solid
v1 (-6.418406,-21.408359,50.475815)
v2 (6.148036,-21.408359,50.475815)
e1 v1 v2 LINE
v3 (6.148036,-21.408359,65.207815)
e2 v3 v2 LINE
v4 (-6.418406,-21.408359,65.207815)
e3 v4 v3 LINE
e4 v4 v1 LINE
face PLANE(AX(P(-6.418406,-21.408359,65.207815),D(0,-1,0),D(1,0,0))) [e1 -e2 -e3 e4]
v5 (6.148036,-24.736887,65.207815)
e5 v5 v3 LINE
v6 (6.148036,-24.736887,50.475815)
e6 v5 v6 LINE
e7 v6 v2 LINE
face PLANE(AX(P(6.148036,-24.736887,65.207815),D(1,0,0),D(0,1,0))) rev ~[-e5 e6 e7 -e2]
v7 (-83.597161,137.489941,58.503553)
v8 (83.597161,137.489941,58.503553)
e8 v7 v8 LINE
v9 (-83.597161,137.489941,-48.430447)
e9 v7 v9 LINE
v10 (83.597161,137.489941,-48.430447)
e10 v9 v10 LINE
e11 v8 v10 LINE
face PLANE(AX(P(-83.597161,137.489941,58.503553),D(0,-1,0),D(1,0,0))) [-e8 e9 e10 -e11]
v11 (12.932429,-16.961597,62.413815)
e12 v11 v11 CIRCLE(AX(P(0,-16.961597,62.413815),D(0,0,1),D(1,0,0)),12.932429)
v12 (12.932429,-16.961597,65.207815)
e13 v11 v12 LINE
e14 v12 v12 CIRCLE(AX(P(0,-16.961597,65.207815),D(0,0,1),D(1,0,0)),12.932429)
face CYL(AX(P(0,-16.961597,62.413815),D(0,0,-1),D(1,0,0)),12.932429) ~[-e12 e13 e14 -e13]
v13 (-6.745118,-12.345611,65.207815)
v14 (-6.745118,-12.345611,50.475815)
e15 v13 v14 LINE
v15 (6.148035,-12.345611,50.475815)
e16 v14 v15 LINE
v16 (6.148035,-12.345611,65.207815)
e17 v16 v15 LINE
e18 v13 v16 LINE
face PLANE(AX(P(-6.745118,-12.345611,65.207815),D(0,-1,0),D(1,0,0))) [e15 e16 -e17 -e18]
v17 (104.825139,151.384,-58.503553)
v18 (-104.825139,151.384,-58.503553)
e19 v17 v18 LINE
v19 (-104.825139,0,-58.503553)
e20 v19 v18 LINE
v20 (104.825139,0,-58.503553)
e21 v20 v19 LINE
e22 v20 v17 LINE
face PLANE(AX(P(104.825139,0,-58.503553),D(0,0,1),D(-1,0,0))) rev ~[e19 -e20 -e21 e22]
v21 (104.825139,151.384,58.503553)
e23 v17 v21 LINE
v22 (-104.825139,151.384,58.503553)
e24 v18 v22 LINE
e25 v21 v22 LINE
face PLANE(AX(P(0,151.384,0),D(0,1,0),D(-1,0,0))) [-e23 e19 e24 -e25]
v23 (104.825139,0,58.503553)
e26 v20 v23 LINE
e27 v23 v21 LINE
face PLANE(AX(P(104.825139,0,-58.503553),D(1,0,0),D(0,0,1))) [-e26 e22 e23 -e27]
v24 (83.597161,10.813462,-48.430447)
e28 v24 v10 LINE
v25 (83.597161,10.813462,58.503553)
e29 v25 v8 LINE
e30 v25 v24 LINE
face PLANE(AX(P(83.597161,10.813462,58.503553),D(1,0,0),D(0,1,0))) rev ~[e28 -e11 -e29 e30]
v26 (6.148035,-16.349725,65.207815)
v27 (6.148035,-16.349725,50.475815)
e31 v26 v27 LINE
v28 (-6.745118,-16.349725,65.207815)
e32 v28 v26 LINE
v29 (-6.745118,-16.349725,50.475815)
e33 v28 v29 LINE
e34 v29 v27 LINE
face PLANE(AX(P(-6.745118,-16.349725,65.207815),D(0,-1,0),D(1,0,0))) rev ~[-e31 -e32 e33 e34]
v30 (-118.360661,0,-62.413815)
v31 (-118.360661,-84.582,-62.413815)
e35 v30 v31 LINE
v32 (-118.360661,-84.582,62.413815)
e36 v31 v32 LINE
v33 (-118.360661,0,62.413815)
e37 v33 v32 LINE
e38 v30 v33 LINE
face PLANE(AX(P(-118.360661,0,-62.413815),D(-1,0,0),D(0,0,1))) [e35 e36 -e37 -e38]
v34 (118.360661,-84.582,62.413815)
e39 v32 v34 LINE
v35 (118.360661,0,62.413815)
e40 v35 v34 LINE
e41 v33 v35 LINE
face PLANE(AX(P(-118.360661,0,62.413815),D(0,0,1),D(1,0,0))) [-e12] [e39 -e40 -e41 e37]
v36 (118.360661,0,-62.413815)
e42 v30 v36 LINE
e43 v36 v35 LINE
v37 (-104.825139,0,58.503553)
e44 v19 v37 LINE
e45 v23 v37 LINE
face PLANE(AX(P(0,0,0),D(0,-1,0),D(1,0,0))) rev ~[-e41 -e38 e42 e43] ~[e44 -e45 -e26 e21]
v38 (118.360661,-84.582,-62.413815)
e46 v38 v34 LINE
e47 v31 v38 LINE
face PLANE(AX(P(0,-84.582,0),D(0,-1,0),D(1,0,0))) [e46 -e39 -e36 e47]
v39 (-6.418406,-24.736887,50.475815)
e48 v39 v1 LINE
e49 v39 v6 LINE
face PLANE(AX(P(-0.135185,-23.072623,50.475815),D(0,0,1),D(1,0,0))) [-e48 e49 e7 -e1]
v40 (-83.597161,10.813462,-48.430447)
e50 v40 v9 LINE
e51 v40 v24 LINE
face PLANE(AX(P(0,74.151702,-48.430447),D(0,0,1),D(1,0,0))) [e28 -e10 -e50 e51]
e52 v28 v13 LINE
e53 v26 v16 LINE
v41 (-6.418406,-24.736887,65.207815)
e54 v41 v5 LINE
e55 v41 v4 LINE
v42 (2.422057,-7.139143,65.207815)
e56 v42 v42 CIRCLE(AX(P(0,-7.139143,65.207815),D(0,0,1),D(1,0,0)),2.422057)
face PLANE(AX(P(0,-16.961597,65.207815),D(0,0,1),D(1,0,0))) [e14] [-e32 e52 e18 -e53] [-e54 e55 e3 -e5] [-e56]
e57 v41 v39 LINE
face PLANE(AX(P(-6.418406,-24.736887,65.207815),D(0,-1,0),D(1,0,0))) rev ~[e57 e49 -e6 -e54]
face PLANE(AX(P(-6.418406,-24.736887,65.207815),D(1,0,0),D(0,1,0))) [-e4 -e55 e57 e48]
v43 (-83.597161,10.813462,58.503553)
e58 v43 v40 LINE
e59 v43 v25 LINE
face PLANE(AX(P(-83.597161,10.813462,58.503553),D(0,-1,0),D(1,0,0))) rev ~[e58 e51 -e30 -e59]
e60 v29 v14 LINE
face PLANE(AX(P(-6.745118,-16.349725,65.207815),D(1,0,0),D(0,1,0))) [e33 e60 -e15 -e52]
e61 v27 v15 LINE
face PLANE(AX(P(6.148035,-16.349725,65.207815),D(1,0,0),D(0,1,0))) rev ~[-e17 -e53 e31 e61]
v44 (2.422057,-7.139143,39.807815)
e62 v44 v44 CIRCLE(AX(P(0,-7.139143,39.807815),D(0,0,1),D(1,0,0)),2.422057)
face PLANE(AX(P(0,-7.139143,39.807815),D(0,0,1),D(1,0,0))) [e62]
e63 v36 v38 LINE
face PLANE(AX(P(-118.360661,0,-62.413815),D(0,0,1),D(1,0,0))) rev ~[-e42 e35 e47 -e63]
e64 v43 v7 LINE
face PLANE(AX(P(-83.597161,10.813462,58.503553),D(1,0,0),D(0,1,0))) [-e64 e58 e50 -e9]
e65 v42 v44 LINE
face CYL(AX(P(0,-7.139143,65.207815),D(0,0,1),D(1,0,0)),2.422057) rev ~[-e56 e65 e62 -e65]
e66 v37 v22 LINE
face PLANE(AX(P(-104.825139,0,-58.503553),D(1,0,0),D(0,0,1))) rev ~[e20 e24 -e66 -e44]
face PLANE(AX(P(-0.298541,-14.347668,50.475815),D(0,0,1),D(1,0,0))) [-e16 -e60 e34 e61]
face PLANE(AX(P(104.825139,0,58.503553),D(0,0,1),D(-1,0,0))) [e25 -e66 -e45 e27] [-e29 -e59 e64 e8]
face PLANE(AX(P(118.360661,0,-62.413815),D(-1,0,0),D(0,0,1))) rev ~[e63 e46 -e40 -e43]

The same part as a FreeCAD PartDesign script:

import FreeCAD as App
import Part
import Sketcher
from FreeCAD import Vector
Q = App.Units.Quantity

doc = App.newDocument("Part")
body = doc.addObject("PartDesign::Body", "Body")

sketch1 = body.newObject("Sketcher::SketchObject", "Sketch")
sketch1.AttachmentSupport = (doc.getObject("XZ_Plane"), [""])
sketch1.MapMode = "FlatFace"
sketch1.addGeometry([
    Part.LineSegment(Vector(-118, 62, 0), Vector(-118, -62, 0)),
    Part.LineSegment(Vector(-118, -62, 0), Vector(118, -62, 0)),
    Part.LineSegment(Vector(118, -62, 0), Vector(118, 62, 0)),
    Part.LineSegment(Vector(118, 62, 0), Vector(-118, 62, 0)),
], False)
sketch1.addConstraint([
    Sketcher.Constraint("Coincident", 0, 2, 1, 1),
    Sketcher.Constraint("Coincident", 1, 2, 2, 1),
    Sketcher.Constraint("Coincident", 2, 2, 3, 1),
    Sketcher.Constraint("Coincident", 3, 2, 0, 1),
    Sketcher.Constraint("Vertical", 0),
    Sketcher.Constraint("Horizontal", 1),
    Sketcher.Constraint("Vertical", 2),
    Sketcher.Constraint("Horizontal", 3),
    Sketcher.Constraint("Symmetric", 0, 2, 2, 2, -1, 1),
    Sketcher.Constraint("DistanceX", 1, 1, 1, 2, 236.721322),
    Sketcher.Constraint("DistanceY", 0, 2, 0, 1, 124.82763),
])
pad1 = body.newObject("PartDesign::Pad", "Pad")
pad1.Profile = sketch1
pad1.Length = Q("3.33 in")

sketch2 = body.newObject("Sketcher::SketchObject", "Sketch001")
sketch2.AttachmentSupport = (doc.getObject("XZ_Plane"), [""])
sketch2.MapMode = "FlatFace"
sketch2.addGeometry([
    Part.LineSegment(Vector(105, 59, 0), Vector(105, -59, 0)),
    Part.LineSegment(Vector(105, -59, 0), Vector(-105, -59, 0)),
    Part.LineSegment(Vector(-105, -59, 0), Vector(-105, 59, 0)),
    Part.LineSegment(Vector(-105, 59, 0), Vector(105, 59, 0)),
], False)
sketch2.addConstraint([
    Sketcher.Constraint("Coincident", 0, 2, 1, 1),
    Sketcher.Constraint("Coincident", 1, 2, 2, 1),
    Sketcher.Constraint("Coincident", 2, 2, 3, 1),
    Sketcher.Constraint("Coincident", 3, 2, 0, 1),
    Sketcher.Constraint("Vertical", 0),
    Sketcher.Constraint("Horizontal", 1),
    Sketcher.Constraint("Vertical", 2),
    Sketcher.Constraint("Horizontal", 3),
    Sketcher.Constraint("Symmetric", 0, 2, 2, 2, -1, 1),
    Sketcher.Constraint("DistanceX", 1, 2, 1, 1, 209.650278),
    Sketcher.Constraint("DistanceY", 0, 2, 0, 1, 117.007106),
])
pad2 = body.newObject("PartDesign::Pad", "Pad001")
pad2.Profile = sketch2
pad2.Length = Q("5.96 in")
pad2.Reversed = True

sketch3 = body.newObject("Sketcher::SketchObject", "Sketch002")
sketch3.AttachmentSupport = (doc.getObject("XY_Plane"), [""])
sketch3.MapMode = "FlatFace"
sketch3.AttachmentOffset = App.Placement(Vector(0, 0, 58.503553), App.Rotation())
sketch3.addGeometry([
    Part.LineSegment(Vector(-84, 137, 0), Vector(-84, 11, 0)),
    Part.LineSegment(Vector(-84, 11, 0), Vector(84, 11, 0)),
    Part.LineSegment(Vector(84, 11, 0), Vector(84, 137, 0)),
    Part.LineSegment(Vector(84, 137, 0), Vector(-84, 137, 0)),
], False)
sketch3.addConstraint([
    Sketcher.Constraint("Coincident", 0, 2, 1, 1),
    Sketcher.Constraint("Coincident", 1, 2, 2, 1),
    Sketcher.Constraint("Coincident", 2, 2, 3, 1),
    Sketcher.Constraint("Coincident", 3, 2, 0, 1),
    Sketcher.Constraint("Vertical", 0),
    Sketcher.Constraint("Horizontal", 1),
    Sketcher.Constraint("Vertical", 2),
    Sketcher.Constraint("Horizontal", 3),
    Sketcher.Constraint("DistanceX", 1, 1, 1, 2, 167.194322),
    Sketcher.Constraint("DistanceY", 0, 2, 0, 1, 126.676479),
    Sketcher.Constraint("DistanceX", 0, 2, -1, 1, 83.597161),
    Sketcher.Constraint("DistanceY", -1, 1, 2, 2, 137.489941),
])
pocket1 = body.newObject("PartDesign::Pocket", "Pocket")
pocket1.Profile = sketch3
pocket1.Length = Q("4.21 in")

sketch4 = body.newObject("Sketcher::SketchObject", "Sketch003")
sketch4.AttachmentSupport = (doc.getObject("XY_Plane"), [""])
sketch4.MapMode = "FlatFace"
sketch4.AttachmentOffset = App.Placement(Vector(0, 0, 62.413815), App.Rotation())
sketch4.addGeometry(Part.Circle(Vector(0, -17, 0), Vector(0, 0, 1), 13), False)
sketch4.addConstraint([
    Sketcher.Constraint("PointOnObject", 0, 3, -2),
    Sketcher.Constraint("Diameter", 0, 25.864858),
    Sketcher.Constraint("DistanceY", 0, 3, -1, 1, 16.961597),
])
pad3 = body.newObject("PartDesign::Pad", "Pad002")
pad3.Profile = sketch4
pad3.Length = Q("0.11 in")

sketch5 = body.newObject("Sketcher::SketchObject", "Sketch004")
sketch5.AttachmentSupport = (doc.getObject("XY_Plane"), [""])
sketch5.MapMode = "FlatFace"
sketch5.AttachmentOffset = App.Placement(Vector(0, 0, 65.207815), App.Rotation())
sketch5.addGeometry([
    Part.LineSegment(Vector(-6.7, -12.3, 0), Vector(-6.7, -16.3, 0)),
    Part.LineSegment(Vector(-6.7, -16.3, 0), Vector(6.1, -16.3, 0)),
    Part.LineSegment(Vector(6.1, -16.3, 0), Vector(6.1, -12.3, 0)),
    Part.LineSegment(Vector(6.1, -12.3, 0), Vector(-6.7, -12.3, 0)),
    Part.LineSegment(Vector(-6.4, -21.4, 0), Vector(-6.4, -24.7, 0)),
    Part.LineSegment(Vector(-6.4, -24.7, 0), Vector(6.1, -24.7, 0)),
    Part.LineSegment(Vector(6.1, -24.7, 0), Vector(6.1, -21.4, 0)),
    Part.LineSegment(Vector(6.1, -21.4, 0), Vector(-6.4, -21.4, 0)),
], False)
sketch5.addConstraint([
    Sketcher.Constraint("Coincident", 0, 2, 1, 1),
    Sketcher.Constraint("Coincident", 1, 2, 2, 1),
    Sketcher.Constraint("Coincident", 2, 2, 3, 1),
    Sketcher.Constraint("Coincident", 3, 2, 0, 1),
    Sketcher.Constraint("Coincident", 4, 2, 5, 1),
    Sketcher.Constraint("Coincident", 5, 2, 6, 1),
    Sketcher.Constraint("Coincident", 6, 2, 7, 1),
    Sketcher.Constraint("Coincident", 7, 2, 4, 1),
    Sketcher.Constraint("Vertical", 0),
    Sketcher.Constraint("Horizontal", 1),
    Sketcher.Constraint("Vertical", 2),
    Sketcher.Constraint("Horizontal", 3),
    Sketcher.Constraint("Vertical", 4),
    Sketcher.Constraint("Horizontal", 5),
    Sketcher.Constraint("Vertical", 6),
    Sketcher.Constraint("Horizontal", 7),
    Sketcher.Constraint("Vertical", 2, 2, 5, 2),
    Sketcher.Constraint("DistanceX", 1, 1, 1, 2, 12.893153),
    Sketcher.Constraint("DistanceX", 5, 1, 5, 2, 12.566442),
    Sketcher.Constraint("DistanceY", 0, 2, 0, 1, 4.004114),
    Sketcher.Constraint("DistanceY", 4, 2, 4, 1, 3.328527),
    Sketcher.Constraint("DistanceY", 2, 2, -1, 1, 12.345611),
    Sketcher.Constraint("DistanceY", 6, 2, -1, 1, 21.408359),
    Sketcher.Constraint("DistanceX", 0, 2, -1, 1, 6.745118),
])
pocket2 = body.newObject("PartDesign::Pocket", "Pocket001")
pocket2.Profile = sketch5
pocket2.Length = Q("0.58 in")

sketch6 = body.newObject("Sketcher::SketchObject", "Sketch005")
sketch6.AttachmentSupport = (doc.getObject("XY_Plane"), [""])
sketch6.MapMode = "FlatFace"
sketch6.AttachmentOffset = App.Placement(Vector(0, 0, 65.207815), App.Rotation())
sketch6.addGeometry(Part.Circle(Vector(0, -7.1, 0), Vector(0, 0, 1), 2.4), False)
sketch6.addConstraint([
    Sketcher.Constraint("PointOnObject", 0, 3, -2),
    Sketcher.Constraint("Diameter", 0, 4.844114),
    Sketcher.Constraint("DistanceY", 0, 3, -1, 1, 7.139143),
])
pocket3 = body.newObject("PartDesign::Pocket", "Pocket002")
pocket3.Profile = sketch6
pocket3.Length = Q("1 in")

doc.recompute()
